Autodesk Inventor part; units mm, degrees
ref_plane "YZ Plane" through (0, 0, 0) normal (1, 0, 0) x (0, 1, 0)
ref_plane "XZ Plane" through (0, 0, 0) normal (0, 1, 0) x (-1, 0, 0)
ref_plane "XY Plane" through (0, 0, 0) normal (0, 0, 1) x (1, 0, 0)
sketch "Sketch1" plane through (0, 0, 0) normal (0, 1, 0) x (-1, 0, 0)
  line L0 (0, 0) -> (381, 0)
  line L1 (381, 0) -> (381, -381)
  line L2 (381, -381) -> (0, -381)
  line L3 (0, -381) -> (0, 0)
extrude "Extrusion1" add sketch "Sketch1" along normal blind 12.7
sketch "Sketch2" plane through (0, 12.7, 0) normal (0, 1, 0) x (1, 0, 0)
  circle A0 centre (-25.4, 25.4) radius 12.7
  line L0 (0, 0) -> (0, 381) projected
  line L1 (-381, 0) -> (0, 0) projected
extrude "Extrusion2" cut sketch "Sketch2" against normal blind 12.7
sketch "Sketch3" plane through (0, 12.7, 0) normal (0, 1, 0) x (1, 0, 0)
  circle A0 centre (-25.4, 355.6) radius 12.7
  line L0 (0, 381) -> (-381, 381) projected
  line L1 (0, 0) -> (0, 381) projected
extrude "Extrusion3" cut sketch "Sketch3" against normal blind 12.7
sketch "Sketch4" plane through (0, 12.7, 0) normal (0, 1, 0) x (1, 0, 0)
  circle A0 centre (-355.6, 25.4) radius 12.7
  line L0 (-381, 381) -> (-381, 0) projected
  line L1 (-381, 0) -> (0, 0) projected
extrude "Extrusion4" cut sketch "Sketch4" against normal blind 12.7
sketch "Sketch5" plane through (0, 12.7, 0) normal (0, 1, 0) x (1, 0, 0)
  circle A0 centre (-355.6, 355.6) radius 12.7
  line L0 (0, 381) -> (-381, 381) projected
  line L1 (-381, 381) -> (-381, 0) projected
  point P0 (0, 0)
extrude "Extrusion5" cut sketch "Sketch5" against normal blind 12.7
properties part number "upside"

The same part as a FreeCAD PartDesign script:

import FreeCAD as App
import Part
import Sketcher

V = App.Vector
Q = App.Units.Quantity


def add_polygon(sketch, points):
    """Adds a closed chain of lines whose ends are joined by coincident constraints."""
    first, n = sketch.GeometryCount, len(points)
    for a, b in zip(points, points[1:] + points[:1]):
        sketch.addGeometry(Part.LineSegment(App.Vector(*a, 0), App.Vector(*b, 0)), False)
    for i in range(n):
        sketch.addConstraint(Sketcher.Constraint("Coincident", first + i, 2, first + (i + 1) % n, 1))

doc = App.newDocument("Part")
body = doc.addObject("PartDesign::Body", "Body")

sketch1 = body.newObject("Sketcher::SketchObject", "Sketch")
sketch1.AttachmentSupport = (doc.getObject("XZ_Plane"), [""])
sketch1.MapMode = "FlatFace"
add_polygon(sketch1, [(-381, 0), (0, 0), (0, -381), (-381, -381)])
sketch1.addConstraint(Sketcher.Constraint("Horizontal", 0))
sketch1.addConstraint(Sketcher.Constraint("Vertical", 1))
sketch1.addConstraint(Sketcher.Constraint("Horizontal", 2))
sketch1.addConstraint(Sketcher.Constraint("Vertical", 3))
sketch1.addConstraint(Sketcher.Constraint("Coincident", 0, 2, -1, 1))
sketch1.addConstraint(Sketcher.Constraint("Equal", 2, 1))
sketch1.addConstraint(Sketcher.Constraint("DistanceX", 0, 1, 0, 2, Q("15 in")))
pad1 = body.newObject("PartDesign::Pad", "Pad")
pad1.Profile = sketch1
pad1.Length = Q("0.5 in")
pad1.Reversed = True

sketch2 = body.newObject("Sketcher::SketchObject", "Sketch001")
sketch2.AttachmentSupport = (doc.getObject("XZ_Plane"), [""])
sketch2.MapMode = "FlatFace"
sketch2.AttachmentOffset = App.Placement(V(0, 0, -0.5 * 25.4), App.Rotation())
sketch2.addGeometry(Part.Circle(V(-25.4, -25.4, 0), V(0, 0, 1), 12.7), False)
sketch2.addConstraint(Sketcher.Constraint("Diameter", 0, Q("1 in")))
sketch2.addConstraint(Sketcher.Constraint("DistanceX", 0, 3, -1, 1, Q("1 in")))
sketch2.addConstraint(Sketcher.Constraint("DistanceY", 0, 3, -1, 1, Q("1 in")))
pocket1 = body.newObject("PartDesign::Pocket", "Pocket")
pocket1.Profile = sketch2
pocket1.Length = Q("0.5 in")
pocket1.Reversed = True

sketch3 = body.newObject("Sketcher::SketchObject", "Sketch002")
sketch3.AttachmentSupport = (doc.getObject("XZ_Plane"), [""])
sketch3.MapMode = "FlatFace"
sketch3.AttachmentOffset = App.Placement(V(0, 0, -0.5 * 25.4), App.Rotation())
sketch3.addGeometry(Part.Circle(V(-25.4, -355.6, 0), V(0, 0, 1), 12.7), False)
sketch3.addConstraint(Sketcher.Constraint("Diameter", 0, Q("1 in")))
sketch3.addConstraint(Sketcher.Constraint("DistanceX", 0, 3, -1, 1, Q("1 in")))
sketch3.addConstraint(Sketcher.Constraint("DistanceY", 0, 3, -1, 1, Q("14 in")))
pocket2 = body.newObject("PartDesign::Pocket", "Pocket001")
pocket2.Profile = sketch3
pocket2.Length = Q("0.5 in")
pocket2.Reversed = True

sketch4 = body.newObject("Sketcher::SketchObject", "Sketch003")
sketch4.AttachmentSupport = (doc.getObject("XZ_Plane"), [""])
sketch4.MapMode = "FlatFace"
sketch4.AttachmentOffset = App.Placement(V(0, 0, -0.5 * 25.4), App.Rotation())
sketch4.addGeometry(Part.Circle(V(-355.6, -25.4, 0), V(0, 0, 1), 12.7), False)
sketch4.addConstraint(Sketcher.Constraint("Diameter", 0, Q("1 in")))
sketch4.addConstraint(Sketcher.Constraint("DistanceX", 0, 3, -1, 1, Q("14 in")))
sketch4.addConstraint(Sketcher.Constraint("DistanceY", 0, 3, -1, 1, Q("1 in")))
pocket3 = body.newObject("PartDesign::Pocket", "Pocket002")
pocket3.Profile = sketch4
pocket3.Length = Q("0.5 in")
pocket3.Reversed = True

sketch5 = body.newObject("Sketcher::SketchObject", "Sketch004")
sketch5.AttachmentSupport = (doc.getObject("XZ_Plane"), [""])
sketch5.MapMode = "FlatFace"
sketch5.AttachmentOffset = App.Placement(V(0, 0, -0.5 * 25.4), App.Rotation())
sketch5.addGeometry(Part.Circle(V(-355.6, -355.6, 0), V(0, 0, 1), 12.7), False)
sketch5.addConstraint(Sketcher.Constraint("Diameter", 0, Q("1 in")))
sketch5.addConstraint(Sketcher.Constraint("DistanceX", 0, 3, -1, 1, Q("14 in")))
sketch5.addConstraint(Sketcher.Constraint("DistanceY", 0, 3, -1, 1, Q("14 in")))
pocket4 = body.newObject("PartDesign::Pocket", "Pocket003")
pocket4.Profile = sketch5
pocket4.Length = Q("0.5 in")
pocket4.Reversed = True

doc.recompute()
